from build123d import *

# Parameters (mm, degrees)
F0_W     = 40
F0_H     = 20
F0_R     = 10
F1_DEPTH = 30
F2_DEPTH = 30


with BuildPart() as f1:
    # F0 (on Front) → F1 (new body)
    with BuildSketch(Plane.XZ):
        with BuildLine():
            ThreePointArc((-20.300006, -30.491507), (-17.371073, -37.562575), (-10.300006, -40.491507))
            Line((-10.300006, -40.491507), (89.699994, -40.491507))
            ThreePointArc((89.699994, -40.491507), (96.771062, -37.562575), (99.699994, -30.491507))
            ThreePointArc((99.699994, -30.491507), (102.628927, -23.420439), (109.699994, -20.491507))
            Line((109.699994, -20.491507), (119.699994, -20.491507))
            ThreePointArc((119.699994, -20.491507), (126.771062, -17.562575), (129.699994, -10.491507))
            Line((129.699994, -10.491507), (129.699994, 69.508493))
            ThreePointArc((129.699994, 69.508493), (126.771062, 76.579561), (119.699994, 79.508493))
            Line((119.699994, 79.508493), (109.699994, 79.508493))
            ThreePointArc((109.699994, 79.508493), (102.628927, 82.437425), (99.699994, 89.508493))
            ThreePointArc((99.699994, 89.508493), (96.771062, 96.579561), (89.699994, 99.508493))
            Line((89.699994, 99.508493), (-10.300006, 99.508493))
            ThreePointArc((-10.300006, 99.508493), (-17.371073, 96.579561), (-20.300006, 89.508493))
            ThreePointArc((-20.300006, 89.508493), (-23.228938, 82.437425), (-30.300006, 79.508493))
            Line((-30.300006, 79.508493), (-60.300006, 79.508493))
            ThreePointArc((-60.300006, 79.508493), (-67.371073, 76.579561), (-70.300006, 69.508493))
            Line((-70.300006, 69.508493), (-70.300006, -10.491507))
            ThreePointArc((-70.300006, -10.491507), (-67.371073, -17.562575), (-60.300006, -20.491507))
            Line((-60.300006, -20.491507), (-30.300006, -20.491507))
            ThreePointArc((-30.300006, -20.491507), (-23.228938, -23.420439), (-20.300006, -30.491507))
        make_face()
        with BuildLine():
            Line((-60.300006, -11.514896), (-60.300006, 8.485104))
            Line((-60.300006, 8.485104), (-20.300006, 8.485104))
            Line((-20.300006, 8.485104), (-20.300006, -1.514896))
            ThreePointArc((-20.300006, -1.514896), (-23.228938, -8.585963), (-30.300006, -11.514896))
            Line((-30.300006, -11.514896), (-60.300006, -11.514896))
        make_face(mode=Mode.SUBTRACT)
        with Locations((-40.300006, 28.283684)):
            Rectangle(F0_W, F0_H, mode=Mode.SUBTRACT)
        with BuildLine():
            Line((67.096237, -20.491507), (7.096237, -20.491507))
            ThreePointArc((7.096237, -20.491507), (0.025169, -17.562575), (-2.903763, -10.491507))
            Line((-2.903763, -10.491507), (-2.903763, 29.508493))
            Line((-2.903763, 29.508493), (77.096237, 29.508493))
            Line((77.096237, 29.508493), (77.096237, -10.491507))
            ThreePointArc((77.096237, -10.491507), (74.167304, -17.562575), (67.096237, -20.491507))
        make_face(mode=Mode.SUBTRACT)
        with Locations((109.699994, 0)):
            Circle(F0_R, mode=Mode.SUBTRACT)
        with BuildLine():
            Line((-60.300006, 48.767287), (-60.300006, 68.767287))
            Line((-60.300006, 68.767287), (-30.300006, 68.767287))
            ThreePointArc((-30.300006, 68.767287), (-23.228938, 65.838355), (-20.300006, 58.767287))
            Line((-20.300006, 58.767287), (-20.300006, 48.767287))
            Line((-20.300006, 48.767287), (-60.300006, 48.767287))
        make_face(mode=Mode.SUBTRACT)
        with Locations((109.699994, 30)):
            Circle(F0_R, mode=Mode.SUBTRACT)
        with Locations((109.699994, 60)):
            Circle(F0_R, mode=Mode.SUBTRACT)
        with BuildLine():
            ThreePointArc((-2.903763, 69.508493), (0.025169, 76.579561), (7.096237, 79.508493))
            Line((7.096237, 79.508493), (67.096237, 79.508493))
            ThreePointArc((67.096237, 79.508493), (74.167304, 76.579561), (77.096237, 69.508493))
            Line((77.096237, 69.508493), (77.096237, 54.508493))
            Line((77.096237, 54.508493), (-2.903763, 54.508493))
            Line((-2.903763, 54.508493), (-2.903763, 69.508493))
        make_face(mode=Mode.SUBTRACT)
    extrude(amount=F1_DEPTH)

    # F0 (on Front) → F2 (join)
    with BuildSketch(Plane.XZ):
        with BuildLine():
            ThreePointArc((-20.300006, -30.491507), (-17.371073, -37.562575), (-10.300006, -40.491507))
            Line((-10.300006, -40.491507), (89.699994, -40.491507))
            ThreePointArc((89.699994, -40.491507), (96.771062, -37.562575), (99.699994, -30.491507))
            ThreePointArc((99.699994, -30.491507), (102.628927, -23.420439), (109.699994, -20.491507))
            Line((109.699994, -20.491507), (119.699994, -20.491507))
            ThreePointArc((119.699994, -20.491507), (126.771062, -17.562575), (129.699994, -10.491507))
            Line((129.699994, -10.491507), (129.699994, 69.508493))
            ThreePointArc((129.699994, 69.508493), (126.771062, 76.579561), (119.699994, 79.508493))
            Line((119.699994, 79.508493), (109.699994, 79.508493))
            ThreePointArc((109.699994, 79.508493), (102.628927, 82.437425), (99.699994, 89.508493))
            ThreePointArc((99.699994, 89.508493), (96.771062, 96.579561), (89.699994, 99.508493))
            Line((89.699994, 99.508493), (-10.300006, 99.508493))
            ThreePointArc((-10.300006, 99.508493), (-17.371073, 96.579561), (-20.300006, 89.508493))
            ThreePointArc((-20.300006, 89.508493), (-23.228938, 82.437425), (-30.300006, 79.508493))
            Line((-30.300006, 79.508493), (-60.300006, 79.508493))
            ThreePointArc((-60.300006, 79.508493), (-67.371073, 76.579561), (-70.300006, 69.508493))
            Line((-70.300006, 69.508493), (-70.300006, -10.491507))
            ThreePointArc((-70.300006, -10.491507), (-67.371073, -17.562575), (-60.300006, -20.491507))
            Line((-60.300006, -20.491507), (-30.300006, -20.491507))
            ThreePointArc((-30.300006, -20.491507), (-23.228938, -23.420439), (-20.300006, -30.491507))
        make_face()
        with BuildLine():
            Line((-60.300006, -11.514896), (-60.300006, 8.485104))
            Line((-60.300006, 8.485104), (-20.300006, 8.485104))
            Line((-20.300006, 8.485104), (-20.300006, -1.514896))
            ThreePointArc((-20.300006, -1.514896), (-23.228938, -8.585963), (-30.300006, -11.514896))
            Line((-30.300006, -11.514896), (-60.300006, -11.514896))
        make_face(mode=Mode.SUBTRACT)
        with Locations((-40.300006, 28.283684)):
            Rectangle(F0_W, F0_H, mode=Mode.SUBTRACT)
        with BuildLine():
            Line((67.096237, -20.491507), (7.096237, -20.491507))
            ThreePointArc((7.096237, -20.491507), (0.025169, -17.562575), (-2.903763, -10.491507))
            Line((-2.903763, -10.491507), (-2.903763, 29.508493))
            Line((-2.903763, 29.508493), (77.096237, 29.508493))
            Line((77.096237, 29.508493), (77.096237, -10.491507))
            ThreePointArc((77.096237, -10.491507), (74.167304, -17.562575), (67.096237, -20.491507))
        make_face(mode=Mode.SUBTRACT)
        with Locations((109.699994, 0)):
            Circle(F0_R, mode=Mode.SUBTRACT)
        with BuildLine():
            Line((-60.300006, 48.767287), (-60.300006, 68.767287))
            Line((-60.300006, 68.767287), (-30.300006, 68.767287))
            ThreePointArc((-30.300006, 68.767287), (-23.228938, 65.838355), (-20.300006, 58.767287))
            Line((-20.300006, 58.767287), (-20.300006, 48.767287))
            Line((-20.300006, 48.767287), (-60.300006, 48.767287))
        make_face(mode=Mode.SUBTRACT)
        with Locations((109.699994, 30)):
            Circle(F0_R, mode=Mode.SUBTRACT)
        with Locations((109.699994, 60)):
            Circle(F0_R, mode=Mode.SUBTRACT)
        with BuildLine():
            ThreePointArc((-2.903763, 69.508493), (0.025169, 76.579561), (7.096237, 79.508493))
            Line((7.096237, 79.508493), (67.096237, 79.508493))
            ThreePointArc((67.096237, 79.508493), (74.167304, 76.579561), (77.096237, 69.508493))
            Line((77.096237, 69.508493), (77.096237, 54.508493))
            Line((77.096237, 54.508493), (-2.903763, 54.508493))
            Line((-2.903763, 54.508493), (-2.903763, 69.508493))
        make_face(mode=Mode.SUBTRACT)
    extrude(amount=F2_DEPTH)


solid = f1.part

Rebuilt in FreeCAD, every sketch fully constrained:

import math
import FreeCAD as App
import Part
import Sketcher
from FreeCAD import Vector
Q = App.Units.Quantity

doc = App.newDocument("Part")
body = doc.addObject("PartDesign::Body", "Body")

# Sketch on XZ plane
sketch1 = body.newObject("Sketcher::SketchObject", "Sketch")
sketch1.AttachmentSupport = (doc.getObject("XZ_Plane"), [""])
sketch1.MapMode = "FlatFace"
sketch1.addGeometry([
    Part.ArcOfCircle(Part.Circle(Vector(-10, -30, 0), Vector(0, 0, 1), 10), math.radians(-180), math.radians(-90)),  # 0
    Part.LineSegment(Vector(-10, -40, 0), Vector(90, -40, 0)),  # 1
    Part.ArcOfCircle(Part.Circle(Vector(90, -30, 0), Vector(0, 0, 1), 10), math.radians(-90), math.radians(0)),  # 2
    Part.ArcOfCircle(Part.Circle(Vector(110, -30, 0), Vector(0, 0, 1), 10), math.radians(90), math.radians(180)),  # 3
    Part.LineSegment(Vector(110, -20, 0), Vector(120, -20, 0)),  # 4
    Part.ArcOfCircle(Part.Circle(Vector(120, -10, 0), Vector(0, 0, 1), 10), math.radians(-90), math.radians(0)),  # 5
    Part.LineSegment(Vector(130, -10, 0), Vector(130, 70, 0)),  # 6
    Part.ArcOfCircle(Part.Circle(Vector(120, 70, 0), Vector(0, 0, 1), 10), math.radians(0), math.radians(90)),  # 7
    Part.LineSegment(Vector(120, 80, 0), Vector(110, 80, 0)),  # 8
    Part.ArcOfCircle(Part.Circle(Vector(110, 90, 0), Vector(0, 0, 1), 10), math.radians(-180), math.radians(-90)),  # 9
    Part.ArcOfCircle(Part.Circle(Vector(90, 90, 0), Vector(0, 0, 1), 10), math.radians(0), math.radians(90)),  # 10
    Part.LineSegment(Vector(90, 100, 0), Vector(-10, 100, 0)),  # 11
    Part.ArcOfCircle(Part.Circle(Vector(-10, 90, 0), Vector(0, 0, 1), 10), math.radians(90), math.radians(180)),  # 12
    Part.ArcOfCircle(Part.Circle(Vector(-30, 90, 0), Vector(0, 0, 1), 10), math.radians(-90), math.radians(0)),  # 13
    Part.LineSegment(Vector(-30, 80, 0), Vector(-60, 80, 0)),  # 14
    Part.ArcOfCircle(Part.Circle(Vector(-60, 70, 0), Vector(0, 0, 1), 10), math.radians(90), math.radians(180)),  # 15
    Part.LineSegment(Vector(-70, 70, 0), Vector(-70, -10, 0)),  # 16
    Part.ArcOfCircle(Part.Circle(Vector(-60, -10, 0), Vector(0, 0, 1), 10), math.radians(-180), math.radians(-90)),  # 17
    Part.LineSegment(Vector(-60, -20, 0), Vector(-30, -20, 0)),  # 18
    Part.ArcOfCircle(Part.Circle(Vector(-30, -30, 0), Vector(0, 0, 1), 10), math.radians(0), math.radians(90)),  # 19
    Part.LineSegment(Vector(-30, -12, 0), Vector(-60, -12, 0)),  # 20
    Part.LineSegment(Vector(-60, -12, 0), Vector(-60, 8, 0)),  # 21
    Part.LineSegment(Vector(-60, 8, 0), Vector(-20, 8, 0)),  # 22
    Part.LineSegment(Vector(-20, 8, 0), Vector(-20, -2, 0)),  # 23
    Part.ArcOfCircle(Part.Circle(Vector(-30, -2, 0), Vector(0, 0, 1), 10), math.radians(-90), math.radians(0)),  # 24
    Part.LineSegment(Vector(-20, 18, 0), Vector(-60, 18, 0)),  # 25
    Part.LineSegment(Vector(-60, 18, 0), Vector(-60, 38, 0)),  # 26
    Part.LineSegment(Vector(-60, 38, 0), Vector(-20, 38, 0)),  # 27
    Part.LineSegment(Vector(-20, 38, 0), Vector(-20, 18, 0)),  # 28
    Part.Circle(Vector(110, 0, 0), Vector(0, 0, 1), 10),  # 29
    Part.ArcOfCircle(Part.Circle(Vector(67, -10, 0), Vector(0, 0, 1), 10), math.radians(-90), math.radians(0)),  # 30
    Part.LineSegment(Vector(67, -20, 0), Vector(7, -20, 0)),  # 31
    Part.ArcOfCircle(Part.Circle(Vector(7, -10, 0), Vector(0, 0, 1), 10), math.radians(180), math.radians(270)),  # 32
    Part.LineSegment(Vector(-3, -10, 0), Vector(-3, 30, 0)),  # 33
    Part.LineSegment(Vector(-3, 30, 0), Vector(77, 30, 0)),  # 34
    Part.LineSegment(Vector(77, 30, 0), Vector(77, -10, 0)),  # 35
    Part.LineSegment(Vector(-20, 49, 0), Vector(-60, 49, 0)),  # 36
    Part.LineSegment(Vector(-60, 49, 0), Vector(-60, 69, 0)),  # 37
    Part.LineSegment(Vector(-60, 69, 0), Vector(-30, 69, 0)),  # 38
    Part.ArcOfCircle(Part.Circle(Vector(-30, 59, 0), Vector(0, 0, 1), 10), math.radians(0), math.radians(90)),  # 39
    Part.LineSegment(Vector(-20, 59, 0), Vector(-20, 49, 0)),  # 40
    Part.Circle(Vector(110, 30, 0), Vector(0, 0, 1), 10),  # 41
    Part.LineSegment(Vector(-3, 55, 0), Vector(-3, 70, 0)),  # 42
    Part.ArcOfCircle(Part.Circle(Vector(7, 70, 0), Vector(0, 0, 1), 10), math.radians(90), math.radians(180)),  # 43
    Part.LineSegment(Vector(7, 80, 0), Vector(67, 80, 0)),  # 44
    Part.ArcOfCircle(Part.Circle(Vector(67, 70, 0), Vector(0, 0, 1), 10), math.radians(0), math.radians(90)),  # 45
    Part.LineSegment(Vector(77, 70, 0), Vector(77, 55, 0)),  # 46
    Part.LineSegment(Vector(77, 55, 0), Vector(-3, 55, 0)),  # 47
    Part.Circle(Vector(110, 60, 0), Vector(0, 0, 1), 10),  # 48
], False)
sketch1.addConstraint([
    Sketcher.Constraint("Tangent", 0, 2, 1, 1),
    Sketcher.Constraint("Tangent", 1, 2, 2, 1),
    Sketcher.Constraint("Tangent", 2, 2, 3, 2),
    Sketcher.Constraint("Tangent", 3, 1, 4, 1),
    Sketcher.Constraint("Tangent", 4, 2, 5, 1),
    Sketcher.Constraint("Tangent", 5, 2, 6, 1),
    Sketcher.Constraint("Tangent", 6, 2, 7, 1),
    Sketcher.Constraint("Tangent", 7, 2, 8, 1),
    Sketcher.Constraint("Tangent", 8, 2, 9, 2),
    Sketcher.Constraint("Tangent", 9, 1, 10, 1),
    Sketcher.Constraint("Tangent", 10, 2, 11, 1),
    Sketcher.Constraint("Tangent", 11, 2, 12, 1),
    Sketcher.Constraint("Tangent", 12, 2, 13, 2),
    Sketcher.Constraint("Tangent", 13, 1, 14, 1),
    Sketcher.Constraint("Tangent", 14, 2, 15, 1),
    Sketcher.Constraint("Tangent", 15, 2, 16, 1),
    Sketcher.Constraint("Tangent", 16, 2, 17, 1),
    Sketcher.Constraint("Tangent", 17, 2, 18, 1),
    Sketcher.Constraint("Tangent", 18, 2, 19, 2),
    Sketcher.Constraint("Tangent", 19, 1, 0, 1),
    Sketcher.Constraint("Coincident", 20, 2, 21, 1),
    Sketcher.Constraint("Coincident", 21, 2, 22, 1),
    Sketcher.Constraint("Coincident", 22, 2, 23, 1),
    Sketcher.Constraint("Tangent", 23, 2, 24, 2),
    Sketcher.Constraint("Tangent", 24, 1, 20, 1),
    Sketcher.Constraint("Coincident", 25, 2, 26, 1),
    Sketcher.Constraint("Coincident", 26, 2, 27, 1),
    Sketcher.Constraint("Coincident", 27, 2, 28, 1),
    Sketcher.Constraint("Coincident", 28, 2, 25, 1),
    Sketcher.Constraint("Tangent", 30, 1, 31, 1),
    Sketcher.Constraint("Tangent", 31, 2, 32, 2),
    Sketcher.Constraint("Tangent", 32, 1, 33, 1),
    Sketcher.Constraint("Coincident", 33, 2, 34, 1),
    Sketcher.Constraint("Coincident", 34, 2, 35, 1),
    Sketcher.Constraint("Tangent", 35, 2, 30, 2),
    Sketcher.Constraint("Coincident", 36, 2, 37, 1),
    Sketcher.Constraint("Coincident", 37, 2, 38, 1),
    Sketcher.Constraint("Tangent", 38, 2, 39, 2),
    Sketcher.Constraint("Tangent", 39, 1, 40, 1),
    Sketcher.Constraint("Coincident", 40, 2, 36, 1),
    Sketcher.Constraint("Tangent", 42, 2, 43, 2),
    Sketcher.Constraint("Tangent", 43, 1, 44, 1),
    Sketcher.Constraint("Tangent", 44, 2, 45, 2),
    Sketcher.Constraint("Tangent", 45, 1, 46, 1),
    Sketcher.Constraint("Coincident", 46, 2, 47, 1),
    Sketcher.Constraint("Coincident", 47, 2, 42, 1),
    Sketcher.Constraint("Horizontal", 1),
    Sketcher.Constraint("Horizontal", 4),
    Sketcher.Constraint("Vertical", 6),
    Sketcher.Constraint("Horizontal", 8),
    Sketcher.Constraint("Horizontal", 11),
    Sketcher.Constraint("Horizontal", 14),
    Sketcher.Constraint("Vertical", 16),
    Sketcher.Constraint("Horizontal", 18),
    Sketcher.Constraint("Horizontal", 20),
    Sketcher.Constraint("Vertical", 21),
    Sketcher.Constraint("Horizontal", 22),
    Sketcher.Constraint("Vertical", 23),
    Sketcher.Constraint("Horizontal", 25),
    Sketcher.Constraint("Vertical", 26),
    Sketcher.Constraint("Horizontal", 27),
    Sketcher.Constraint("Vertical", 28),
    Sketcher.Constraint("Horizontal", 31),
    Sketcher.Constraint("Vertical", 33),
    Sketcher.Constraint("Horizontal", 34),
    Sketcher.Constraint("Vertical", 35),
    Sketcher.Constraint("Horizontal", 36),
    Sketcher.Constraint("Vertical", 37),
    Sketcher.Constraint("Horizontal", 38),
    Sketcher.Constraint("Vertical", 40),
    Sketcher.Constraint("Vertical", 42),
    Sketcher.Constraint("Horizontal", 44),
    Sketcher.Constraint("Vertical", 46),
    Sketcher.Constraint("Horizontal", 47),
    Sketcher.Constraint("Equal", 0, 2),
    Sketcher.Constraint("Equal", 2, 3),
    Sketcher.Constraint("Equal", 3, 5),
    Sketcher.Constraint("Equal", 5, 7),
    Sketcher.Constraint("Equal", 7, 9),
    Sketcher.Constraint("Equal", 9, 10),
    Sketcher.Constraint("Equal", 10, 12),
    Sketcher.Constraint("Equal", 12, 13),
    Sketcher.Constraint("Equal", 13, 15),
    Sketcher.Constraint("Equal", 15, 17),
    Sketcher.Constraint("Equal", 17, 19),
    Sketcher.Constraint("Equal", 19, 24),
    Sketcher.Constraint("Equal", 24, 29),
    Sketcher.Constraint("Equal", 29, 30),
    Sketcher.Constraint("Equal", 30, 32),
    Sketcher.Constraint("Equal", 32, 39),
    Sketcher.Constraint("Equal", 39, 41),
    Sketcher.Constraint("Equal", 41, 43),
    Sketcher.Constraint("Equal", 43, 45),
    Sketcher.Constraint("Equal", 45, 48),
    Sketcher.Constraint("PointOnObject", 29, 3, -1),
    Sketcher.Constraint("Horizontal", 2, 3, 3, 3),
    Sketcher.Constraint("Horizontal", 9, 3, 10, 3),
    Sketcher.Constraint("Horizontal", 12, 3, 13, 3),
    Sketcher.Constraint("Horizontal", 5, 3, 17, 3),
    Sketcher.Constraint("Horizontal", 17, 3, 30, 3),
    Sketcher.Constraint("Horizontal", 15, 3, 43, 3),
    Sketcher.Constraint("Vertical", 3, 3, 9, 3),
    Sketcher.Constraint("Vertical", 0, 3, 12, 3),
    Sketcher.Constraint("Vertical", 19, 3, 24, 3),
    Sketcher.Constraint("Vertical", 9, 3, 29, 3),
    Sketcher.Constraint("Vertical", 24, 3, 39, 3),
    Sketcher.Constraint("Vertical", 29, 3, 41, 3),
    Sketcher.Constraint("Vertical", 32, 3, 43, 3),
    Sketcher.Constraint("Vertical", 30, 3, 45, 3),
    Sketcher.Constraint("Vertical", 41, 3, 48, 3),
    Sketcher.Constraint("Vertical", 17, 2, 20, 2),
    Sketcher.Constraint("Vertical", 21, 2, 25, 2),
    Sketcher.Constraint("Vertical", 23, 2, 27, 2),
    Sketcher.Constraint("Vertical", 26, 2, 36, 2),
    Sketcher.Constraint("Equal", 47, 6),
    Sketcher.Constraint("Equal", 8, 23),
    Sketcher.Constraint("Equal", 21, 26),
    Sketcher.Constraint("Equal", 36, 33),
    Sketcher.Constraint("Equal", 28, 37),
    Sketcher.Constraint("Diameter", 29, Q("20 mm")),
    Sketcher.Constraint("DistanceX", 1, 1, 1, 2, Q("100 mm")),
    Sketcher.Constraint("DistanceX", 4, 1, 4, 2, Q("10 mm")),
    Sketcher.Constraint("DistanceX", 14, 2, 14, 1, Q("30 mm")),
    Sketcher.Constraint("DistanceX", 31, 2, 31, 1, Q("60 mm")),
    Sketcher.Constraint("DistanceY", 42, 1, 42, 2, Q("15 mm")),
    Sketcher.Constraint("DistanceY", -1, 1, 41, 3, Q("30 mm")),
    Sketcher.Constraint("DistanceY", -1, 1, 48, 3, Q("60 mm")),
    Sketcher.Constraint("DistanceY", 3, 3, -1, 1, Q("30.491508 mm")),
    Sketcher.Constraint("DistanceX", 0, 3, -1, 1, Q("10.300005 mm")),
    Sketcher.Constraint("DistanceY", 24, 3, -1, 1, Q("1.514895 mm")),
    Sketcher.Constraint("DistanceX", -1, 1, 30, 3, Q("67.096236 mm")),
    Sketcher.Constraint("DistanceY", -1, 1, 39, 3, Q("58.767288 mm")),
    Sketcher.Constraint("DistanceY", -1, 1, 25, 2, Q("18.283684 mm")),
])
pad1 = body.newObject("PartDesign::Pad", "Pad")
pad1.Profile = sketch1
pad1.Length = 30

# Sketch on XZ plane
sketch2 = body.newObject("Sketcher::SketchObject", "Sketch001")
sketch2.AttachmentSupport = (doc.getObject("XZ_Plane"), [""])
sketch2.MapMode = "FlatFace"
sketch2.addGeometry([
    Part.ArcOfCircle(Part.Circle(Vector(-10, -30, 0), Vector(0, 0, 1), 10), math.radians(-180), math.radians(-90)),  # 0
    Part.LineSegment(Vector(-10, -40, 0), Vector(90, -40, 0)),  # 1
    Part.ArcOfCircle(Part.Circle(Vector(90, -30, 0), Vector(0, 0, 1), 10), math.radians(-90), math.radians(0)),  # 2
    Part.ArcOfCircle(Part.Circle(Vector(110, -30, 0), Vector(0, 0, 1), 10), math.radians(90), math.radians(180)),  # 3
    Part.LineSegment(Vector(110, -20, 0), Vector(120, -20, 0)),  # 4
    Part.ArcOfCircle(Part.Circle(Vector(120, -10, 0), Vector(0, 0, 1), 10), math.radians(-90), math.radians(0)),  # 5
    Part.LineSegment(Vector(130, -10, 0), Vector(130, 70, 0)),  # 6
    Part.ArcOfCircle(Part.Circle(Vector(120, 70, 0), Vector(0, 0, 1), 10), math.radians(0), math.radians(90)),  # 7
    Part.LineSegment(Vector(120, 80, 0), Vector(110, 80, 0)),  # 8
    Part.ArcOfCircle(Part.Circle(Vector(110, 90, 0), Vector(0, 0, 1), 10), math.radians(-180), math.radians(-90)),  # 9
    Part.ArcOfCircle(Part.Circle(Vector(90, 90, 0), Vector(0, 0, 1), 10), math.radians(0), math.radians(90)),  # 10
    Part.LineSegment(Vector(90, 100, 0), Vector(-10, 100, 0)),  # 11
    Part.ArcOfCircle(Part.Circle(Vector(-10, 90, 0), Vector(0, 0, 1), 10), math.radians(90), math.radians(180)),  # 12
    Part.ArcOfCircle(Part.Circle(Vector(-30, 90, 0), Vector(0, 0, 1), 10), math.radians(-90), math.radians(0)),  # 13
    Part.LineSegment(Vector(-30, 80, 0), Vector(-60, 80, 0)),  # 14
    Part.ArcOfCircle(Part.Circle(Vector(-60, 70, 0), Vector(0, 0, 1), 10), math.radians(90), math.radians(180)),  # 15
    Part.LineSegment(Vector(-70, 70, 0), Vector(-70, -10, 0)),  # 16
    Part.ArcOfCircle(Part.Circle(Vector(-60, -10, 0), Vector(0, 0, 1), 10), math.radians(-180), math.radians(-90)),  # 17
    Part.LineSegment(Vector(-60, -20, 0), Vector(-30, -20, 0)),  # 18
    Part.ArcOfCircle(Part.Circle(Vector(-30, -30, 0), Vector(0, 0, 1), 10), math.radians(0), math.radians(90)),  # 19
    Part.LineSegment(Vector(-30, -12, 0), Vector(-60, -12, 0)),  # 20
    Part.LineSegment(Vector(-60, -12, 0), Vector(-60, 8, 0)),  # 21
    Part.LineSegment(Vector(-60, 8, 0), Vector(-20, 8, 0)),  # 22
    Part.LineSegment(Vector(-20, 8, 0), Vector(-20, -2, 0)),  # 23
    Part.ArcOfCircle(Part.Circle(Vector(-30, -2, 0), Vector(0, 0, 1), 10), math.radians(-90), math.radians(0)),  # 24
    Part.LineSegment(Vector(-20, 18, 0), Vector(-60, 18, 0)),  # 25
    Part.LineSegment(Vector(-60, 18, 0), Vector(-60, 38, 0)),  # 26
    Part.LineSegment(Vector(-60, 38, 0), Vector(-20, 38, 0)),  # 27
    Part.LineSegment(Vector(-20, 38, 0), Vector(-20, 18, 0)),  # 28
    Part.Circle(Vector(110, 0, 0), Vector(0, 0, 1), 10),  # 29
    Part.ArcOfCircle(Part.Circle(Vector(67, -10, 0), Vector(0, 0, 1), 10), math.radians(-90), math.radians(0)),  # 30
    Part.LineSegment(Vector(67, -20, 0), Vector(7, -20, 0)),  # 31
    Part.ArcOfCircle(Part.Circle(Vector(7, -10, 0), Vector(0, 0, 1), 10), math.radians(180), math.radians(270)),  # 32
    Part.LineSegment(Vector(-3, -10, 0), Vector(-3, 30, 0)),  # 33
    Part.LineSegment(Vector(-3, 30, 0), Vector(77, 30, 0)),  # 34
    Part.LineSegment(Vector(77, 30, 0), Vector(77, -10, 0)),  # 35
    Part.LineSegment(Vector(-20, 49, 0), Vector(-60, 49, 0)),  # 36
    Part.LineSegment(Vector(-60, 49, 0), Vector(-60, 69, 0)),  # 37
    Part.LineSegment(Vector(-60, 69, 0), Vector(-30, 69, 0)),  # 38
    Part.ArcOfCircle(Part.Circle(Vector(-30, 59, 0), Vector(0, 0, 1), 10), math.radians(0), math.radians(90)),  # 39
    Part.LineSegment(Vector(-20, 59, 0), Vector(-20, 49, 0)),  # 40
    Part.Circle(Vector(110, 30, 0), Vector(0, 0, 1), 10),  # 41
    Part.LineSegment(Vector(-3, 55, 0), Vector(-3, 70, 0)),  # 42
    Part.ArcOfCircle(Part.Circle(Vector(7, 70, 0), Vector(0, 0, 1), 10), math.radians(90), math.radians(180)),  # 43
    Part.LineSegment(Vector(7, 80, 0), Vector(67, 80, 0)),  # 44
    Part.ArcOfCircle(Part.Circle(Vector(67, 70, 0), Vector(0, 0, 1), 10), math.radians(0), math.radians(90)),  # 45
    Part.LineSegment(Vector(77, 70, 0), Vector(77, 55, 0)),  # 46
    Part.LineSegment(Vector(77, 55, 0), Vector(-3, 55, 0)),  # 47
    Part.Circle(Vector(110, 60, 0), Vector(0, 0, 1), 10),  # 48
], False)
sketch2.addConstraint([
    Sketcher.Constraint("Tangent", 0, 2, 1, 1),
    Sketcher.Constraint("Tangent", 1, 2, 2, 1),
    Sketcher.Constraint("Tangent", 2, 2, 3, 2),
    Sketcher.Constraint("Tangent", 3, 1, 4, 1),
    Sketcher.Constraint("Tangent", 4, 2, 5, 1),
    Sketcher.Constraint("Tangent", 5, 2, 6, 1),
    Sketcher.Constraint("Tangent", 6, 2, 7, 1),
    Sketcher.Constraint("Tangent", 7, 2, 8, 1),
    Sketcher.Constraint("Tangent", 8, 2, 9, 2),
    Sketcher.Constraint("Tangent", 9, 1, 10, 1),
    Sketcher.Constraint("Tangent", 10, 2, 11, 1),
    Sketcher.Constraint("Tangent", 11, 2, 12, 1),
    Sketcher.Constraint("Tangent", 12, 2, 13, 2),
    Sketcher.Constraint("Tangent", 13, 1, 14, 1),
    Sketcher.Constraint("Tangent", 14, 2, 15, 1),
    Sketcher.Constraint("Tangent", 15, 2, 16, 1),
    Sketcher.Constraint("Tangent", 16, 2, 17, 1),
    Sketcher.Constraint("Tangent", 17, 2, 18, 1),
    Sketcher.Constraint("Tangent", 18, 2, 19, 2),
    Sketcher.Constraint("Tangent", 19, 1, 0, 1),
    Sketcher.Constraint("Coincident", 20, 2, 21, 1),
    Sketcher.Constraint("Coincident", 21, 2, 22, 1),
    Sketcher.Constraint("Coincident", 22, 2, 23, 1),
    Sketcher.Constraint("Tangent", 23, 2, 24, 2),
    Sketcher.Constraint("Tangent", 24, 1, 20, 1),
    Sketcher.Constraint("Coincident", 25, 2, 26, 1),
    Sketcher.Constraint("Coincident", 26, 2, 27, 1),
    Sketcher.Constraint("Coincident", 27, 2, 28, 1),
    Sketcher.Constraint("Coincident", 28, 2, 25, 1),
    Sketcher.Constraint("Tangent", 30, 1, 31, 1),
    Sketcher.Constraint("Tangent", 31, 2, 32, 2),
    Sketcher.Constraint("Tangent", 32, 1, 33, 1),
    Sketcher.Constraint("Coincident", 33, 2, 34, 1),
    Sketcher.Constraint("Coincident", 34, 2, 35, 1),
    Sketcher.Constraint("Tangent", 35, 2, 30, 2),
    Sketcher.Constraint("Coincident", 36, 2, 37, 1),
    Sketcher.Constraint("Coincident", 37, 2, 38, 1),
    Sketcher.Constraint("Tangent", 38, 2, 39, 2),
    Sketcher.Constraint("Tangent", 39, 1, 40, 1),
    Sketcher.Constraint("Coincident", 40, 2, 36, 1),
    Sketcher.Constraint("Tangent", 42, 2, 43, 2),
    Sketcher.Constraint("Tangent", 43, 1, 44, 1),
    Sketcher.Constraint("Tangent", 44, 2, 45, 2),
    Sketcher.Constraint("Tangent", 45, 1, 46, 1),
    Sketcher.Constraint("Coincident", 46, 2, 47, 1),
    Sketcher.Constraint("Coincident", 47, 2, 42, 1),
    Sketcher.Constraint("Horizontal", 1),
    Sketcher.Constraint("Horizontal", 4),
    Sketcher.Constraint("Vertical", 6),
    Sketcher.Constraint("Horizontal", 8),
    Sketcher.Constraint("Horizontal", 11),
    Sketcher.Constraint("Horizontal", 14),
    Sketcher.Constraint("Vertical", 16),
    Sketcher.Constraint("Horizontal", 18),
    Sketcher.Constraint("Horizontal", 20),
    Sketcher.Constraint("Vertical", 21),
    Sketcher.Constraint("Horizontal", 22),
    Sketcher.Constraint("Vertical", 23),
    Sketcher.Constraint("Horizontal", 25),
    Sketcher.Constraint("Vertical", 26),
    Sketcher.Constraint("Horizontal", 27),
    Sketcher.Constraint("Vertical", 28),
    Sketcher.Constraint("Horizontal", 31),
    Sketcher.Constraint("Vertical", 33),
    Sketcher.Constraint("Horizontal", 34),
    Sketcher.Constraint("Vertical", 35),
    Sketcher.Constraint("Horizontal", 36),
    Sketcher.Constraint("Vertical", 37),
    Sketcher.Constraint("Horizontal", 38),
    Sketcher.Constraint("Vertical", 40),
    Sketcher.Constraint("Vertical", 42),
    Sketcher.Constraint("Horizontal", 44),
    Sketcher.Constraint("Vertical", 46),
    Sketcher.Constraint("Horizontal", 47),
    Sketcher.Constraint("Equal", 0, 2),
    Sketcher.Constraint("Equal", 2, 3),
    Sketcher.Constraint("Equal", 3, 5),
    Sketcher.Constraint("Equal", 5, 7),
    Sketcher.Constraint("Equal", 7, 9),
    Sketcher.Constraint("Equal", 9, 10),
    Sketcher.Constraint("Equal", 10, 12),
    Sketcher.Constraint("Equal", 12, 13),
    Sketcher.Constraint("Equal", 13, 15),
    Sketcher.Constraint("Equal", 15, 17),
    Sketcher.Constraint("Equal", 17, 19),
    Sketcher.Constraint("Equal", 19, 24),
    Sketcher.Constraint("Equal", 24, 29),
    Sketcher.Constraint("Equal", 29, 30),
    Sketcher.Constraint("Equal", 30, 32),
    Sketcher.Constraint("Equal", 32, 39),
    Sketcher.Constraint("Equal", 39, 41),
    Sketcher.Constraint("Equal", 41, 43),
    Sketcher.Constraint("Equal", 43, 45),
    Sketcher.Constraint("Equal", 45, 48),
    Sketcher.Constraint("PointOnObject", 29, 3, -1),
    Sketcher.Constraint("Horizontal", 2, 3, 3, 3),
    Sketcher.Constraint("Horizontal", 9, 3, 10, 3),
    Sketcher.Constraint("Horizontal", 12, 3, 13, 3),
    Sketcher.Constraint("Horizontal", 5, 3, 17, 3),
    Sketcher.Constraint("Horizontal", 17, 3, 30, 3),
    Sketcher.Constraint("Horizontal", 15, 3, 43, 3),
    Sketcher.Constraint("Vertical", 3, 3, 9, 3),
    Sketcher.Constraint("Vertical", 0, 3, 12, 3),
    Sketcher.Constraint("Vertical", 19, 3, 24, 3),
    Sketcher.Constraint("Vertical", 9, 3, 29, 3),
    Sketcher.Constraint("Vertical", 24, 3, 39, 3),
    Sketcher.Constraint("Vertical", 29, 3, 41, 3),
    Sketcher.Constraint("Vertical", 32, 3, 43, 3),
    Sketcher.Constraint("Vertical", 30, 3, 45, 3),
    Sketcher.Constraint("Vertical", 41, 3, 48, 3),
    Sketcher.Constraint("Vertical", 17, 2, 20, 2),
    Sketcher.Constraint("Vertical", 21, 2, 25, 2),
    Sketcher.Constraint("Vertical", 23, 2, 27, 2),
    Sketcher.Constraint("Vertical", 26, 2, 36, 2),
    Sketcher.Constraint("Equal", 47, 6),
    Sketcher.Constraint("Equal", 8, 23),
    Sketcher.Constraint("Equal", 21, 26),
    Sketcher.Constraint("Equal", 36, 33),
    Sketcher.Constraint("Equal", 28, 37),
    Sketcher.Constraint("Diameter", 29, Q("20 mm")),
    Sketcher.Constraint("DistanceX", 1, 1, 1, 2, Q("100 mm")),
    Sketcher.Constraint("DistanceX", 4, 1, 4, 2, Q("10 mm")),
    Sketcher.Constraint("DistanceX", 14, 2, 14, 1, Q("30 mm")),
    Sketcher.Constraint("DistanceX", 31, 2, 31, 1, Q("60 mm")),
    Sketcher.Constraint("DistanceY", 42, 1, 42, 2, Q("15 mm")),
    Sketcher.Constraint("DistanceY", -1, 1, 41, 3, Q("30 mm")),
    Sketcher.Constraint("DistanceY", -1, 1, 48, 3, Q("60 mm")),
    Sketcher.Constraint("DistanceY", 3, 3, -1, 1, Q("30.491508 mm")),
    Sketcher.Constraint("DistanceX", 0, 3, -1, 1, Q("10.300005 mm")),
    Sketcher.Constraint("DistanceY", 24, 3, -1, 1, Q("1.514895 mm")),
    Sketcher.Constraint("DistanceX", -1, 1, 30, 3, Q("67.096236 mm")),
    Sketcher.Constraint("DistanceY", -1, 1, 39, 3, Q("58.767288 mm")),
    Sketcher.Constraint("DistanceY", -1, 1, 25, 2, Q("18.283684 mm")),
])
pad2 = body.newObject("PartDesign::Pad", "Pad001")
pad2.Profile = sketch2
pad2.Length = 30

doc.recompute()
